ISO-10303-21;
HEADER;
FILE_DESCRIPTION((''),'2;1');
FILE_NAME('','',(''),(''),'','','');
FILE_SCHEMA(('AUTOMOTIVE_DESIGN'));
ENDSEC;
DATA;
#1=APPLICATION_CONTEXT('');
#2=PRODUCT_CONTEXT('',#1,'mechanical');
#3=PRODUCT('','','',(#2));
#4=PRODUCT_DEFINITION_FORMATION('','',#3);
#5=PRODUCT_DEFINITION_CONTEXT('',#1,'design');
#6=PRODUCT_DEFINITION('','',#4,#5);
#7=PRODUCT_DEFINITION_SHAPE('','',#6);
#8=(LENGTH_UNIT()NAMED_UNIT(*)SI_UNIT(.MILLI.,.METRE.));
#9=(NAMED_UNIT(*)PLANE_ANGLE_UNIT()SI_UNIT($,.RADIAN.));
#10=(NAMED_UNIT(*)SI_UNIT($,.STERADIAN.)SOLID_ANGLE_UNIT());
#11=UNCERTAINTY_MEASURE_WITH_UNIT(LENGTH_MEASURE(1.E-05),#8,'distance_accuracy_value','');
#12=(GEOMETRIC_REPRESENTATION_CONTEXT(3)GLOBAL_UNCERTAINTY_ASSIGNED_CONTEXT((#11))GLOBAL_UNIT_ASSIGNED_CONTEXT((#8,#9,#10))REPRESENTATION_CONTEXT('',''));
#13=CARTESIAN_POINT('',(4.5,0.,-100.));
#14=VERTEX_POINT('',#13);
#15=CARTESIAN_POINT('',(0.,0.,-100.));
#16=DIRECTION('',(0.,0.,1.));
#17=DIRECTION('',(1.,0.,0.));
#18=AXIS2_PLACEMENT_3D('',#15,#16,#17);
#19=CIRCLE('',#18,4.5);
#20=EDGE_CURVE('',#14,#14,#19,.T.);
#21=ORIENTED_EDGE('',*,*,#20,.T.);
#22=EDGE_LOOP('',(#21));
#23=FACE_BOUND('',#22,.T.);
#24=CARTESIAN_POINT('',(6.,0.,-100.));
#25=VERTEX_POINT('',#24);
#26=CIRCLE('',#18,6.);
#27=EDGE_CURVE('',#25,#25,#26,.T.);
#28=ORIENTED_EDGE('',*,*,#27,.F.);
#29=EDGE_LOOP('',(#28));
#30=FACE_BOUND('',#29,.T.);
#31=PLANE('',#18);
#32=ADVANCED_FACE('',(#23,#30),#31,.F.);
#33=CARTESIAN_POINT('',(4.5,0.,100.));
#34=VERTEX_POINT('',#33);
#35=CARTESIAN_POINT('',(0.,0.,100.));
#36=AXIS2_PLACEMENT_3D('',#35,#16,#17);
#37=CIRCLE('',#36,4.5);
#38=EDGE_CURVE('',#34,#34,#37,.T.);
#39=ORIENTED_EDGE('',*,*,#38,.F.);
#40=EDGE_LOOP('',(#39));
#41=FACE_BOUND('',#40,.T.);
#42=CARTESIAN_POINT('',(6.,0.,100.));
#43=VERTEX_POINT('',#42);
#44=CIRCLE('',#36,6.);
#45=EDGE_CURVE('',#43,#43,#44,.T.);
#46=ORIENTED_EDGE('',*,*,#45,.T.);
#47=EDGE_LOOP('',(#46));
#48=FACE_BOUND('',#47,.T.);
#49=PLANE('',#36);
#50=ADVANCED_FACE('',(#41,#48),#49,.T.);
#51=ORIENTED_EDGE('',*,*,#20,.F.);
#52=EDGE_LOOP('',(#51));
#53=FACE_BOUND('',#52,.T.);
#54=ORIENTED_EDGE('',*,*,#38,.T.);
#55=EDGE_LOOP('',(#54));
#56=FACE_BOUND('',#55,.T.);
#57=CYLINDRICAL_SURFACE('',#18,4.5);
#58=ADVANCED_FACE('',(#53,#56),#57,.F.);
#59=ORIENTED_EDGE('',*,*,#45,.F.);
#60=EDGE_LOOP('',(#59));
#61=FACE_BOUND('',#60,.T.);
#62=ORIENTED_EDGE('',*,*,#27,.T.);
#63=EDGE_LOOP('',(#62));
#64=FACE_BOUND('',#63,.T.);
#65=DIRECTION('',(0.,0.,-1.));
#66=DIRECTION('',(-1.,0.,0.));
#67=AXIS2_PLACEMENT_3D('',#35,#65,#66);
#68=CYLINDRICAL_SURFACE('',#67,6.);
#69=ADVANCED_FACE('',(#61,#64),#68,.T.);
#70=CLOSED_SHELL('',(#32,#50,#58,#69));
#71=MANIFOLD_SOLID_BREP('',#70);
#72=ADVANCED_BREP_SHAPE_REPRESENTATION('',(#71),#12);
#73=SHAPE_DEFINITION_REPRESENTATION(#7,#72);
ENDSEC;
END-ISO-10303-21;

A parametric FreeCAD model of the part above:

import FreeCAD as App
import Part
import Sketcher

doc = App.newDocument("Part")
body = doc.addObject("PartDesign::Body", "Body")

# Sketch on XY plane
sketch1 = body.newObject("Sketcher::SketchObject", "Sketch")
sketch1.AttachmentSupport = (doc.getObject("XY_Plane"), [""])
sketch1.MapMode = "FlatFace"
sketch1.addGeometry(Part.Circle(App.Vector(0, 0, 0), App.Vector(0, 0, 1), 6), False)
sketch1.addConstraint(Sketcher.Constraint("Coincident", 0, 3, -1, 1))
sketch1.addConstraint(Sketcher.Constraint("Diameter", 0, 12.0))
pad1 = body.newObject("PartDesign::Pad", "Pad")
pad1.Profile = sketch1
pad1.Length = 200
pad1.Midplane = True

# Sketch on XY plane
sketch2 = body.newObject("Sketcher::SketchObject", "Sketch001")
sketch2.AttachmentSupport = (doc.getObject("XY_Plane"), [""])
sketch2.MapMode = "FlatFace"
sketch2.AttachmentOffset = App.Placement(App.Vector(0, 0, 100), App.Rotation())
sketch2.addGeometry(Part.Circle(App.Vector(0, 0, 0), App.Vector(0, 0, 1), 4.5), False)
sketch2.addConstraint(Sketcher.Constraint("Coincident", 0, 3, -1, 1))
sketch2.addConstraint(Sketcher.Constraint("Diameter", 0, 9.0))
pocket1 = body.newObject("PartDesign::Pocket", "Pocket")
pocket1.Profile = sketch2
pocket1.Type = "ThroughAll"

doc.recompute()
